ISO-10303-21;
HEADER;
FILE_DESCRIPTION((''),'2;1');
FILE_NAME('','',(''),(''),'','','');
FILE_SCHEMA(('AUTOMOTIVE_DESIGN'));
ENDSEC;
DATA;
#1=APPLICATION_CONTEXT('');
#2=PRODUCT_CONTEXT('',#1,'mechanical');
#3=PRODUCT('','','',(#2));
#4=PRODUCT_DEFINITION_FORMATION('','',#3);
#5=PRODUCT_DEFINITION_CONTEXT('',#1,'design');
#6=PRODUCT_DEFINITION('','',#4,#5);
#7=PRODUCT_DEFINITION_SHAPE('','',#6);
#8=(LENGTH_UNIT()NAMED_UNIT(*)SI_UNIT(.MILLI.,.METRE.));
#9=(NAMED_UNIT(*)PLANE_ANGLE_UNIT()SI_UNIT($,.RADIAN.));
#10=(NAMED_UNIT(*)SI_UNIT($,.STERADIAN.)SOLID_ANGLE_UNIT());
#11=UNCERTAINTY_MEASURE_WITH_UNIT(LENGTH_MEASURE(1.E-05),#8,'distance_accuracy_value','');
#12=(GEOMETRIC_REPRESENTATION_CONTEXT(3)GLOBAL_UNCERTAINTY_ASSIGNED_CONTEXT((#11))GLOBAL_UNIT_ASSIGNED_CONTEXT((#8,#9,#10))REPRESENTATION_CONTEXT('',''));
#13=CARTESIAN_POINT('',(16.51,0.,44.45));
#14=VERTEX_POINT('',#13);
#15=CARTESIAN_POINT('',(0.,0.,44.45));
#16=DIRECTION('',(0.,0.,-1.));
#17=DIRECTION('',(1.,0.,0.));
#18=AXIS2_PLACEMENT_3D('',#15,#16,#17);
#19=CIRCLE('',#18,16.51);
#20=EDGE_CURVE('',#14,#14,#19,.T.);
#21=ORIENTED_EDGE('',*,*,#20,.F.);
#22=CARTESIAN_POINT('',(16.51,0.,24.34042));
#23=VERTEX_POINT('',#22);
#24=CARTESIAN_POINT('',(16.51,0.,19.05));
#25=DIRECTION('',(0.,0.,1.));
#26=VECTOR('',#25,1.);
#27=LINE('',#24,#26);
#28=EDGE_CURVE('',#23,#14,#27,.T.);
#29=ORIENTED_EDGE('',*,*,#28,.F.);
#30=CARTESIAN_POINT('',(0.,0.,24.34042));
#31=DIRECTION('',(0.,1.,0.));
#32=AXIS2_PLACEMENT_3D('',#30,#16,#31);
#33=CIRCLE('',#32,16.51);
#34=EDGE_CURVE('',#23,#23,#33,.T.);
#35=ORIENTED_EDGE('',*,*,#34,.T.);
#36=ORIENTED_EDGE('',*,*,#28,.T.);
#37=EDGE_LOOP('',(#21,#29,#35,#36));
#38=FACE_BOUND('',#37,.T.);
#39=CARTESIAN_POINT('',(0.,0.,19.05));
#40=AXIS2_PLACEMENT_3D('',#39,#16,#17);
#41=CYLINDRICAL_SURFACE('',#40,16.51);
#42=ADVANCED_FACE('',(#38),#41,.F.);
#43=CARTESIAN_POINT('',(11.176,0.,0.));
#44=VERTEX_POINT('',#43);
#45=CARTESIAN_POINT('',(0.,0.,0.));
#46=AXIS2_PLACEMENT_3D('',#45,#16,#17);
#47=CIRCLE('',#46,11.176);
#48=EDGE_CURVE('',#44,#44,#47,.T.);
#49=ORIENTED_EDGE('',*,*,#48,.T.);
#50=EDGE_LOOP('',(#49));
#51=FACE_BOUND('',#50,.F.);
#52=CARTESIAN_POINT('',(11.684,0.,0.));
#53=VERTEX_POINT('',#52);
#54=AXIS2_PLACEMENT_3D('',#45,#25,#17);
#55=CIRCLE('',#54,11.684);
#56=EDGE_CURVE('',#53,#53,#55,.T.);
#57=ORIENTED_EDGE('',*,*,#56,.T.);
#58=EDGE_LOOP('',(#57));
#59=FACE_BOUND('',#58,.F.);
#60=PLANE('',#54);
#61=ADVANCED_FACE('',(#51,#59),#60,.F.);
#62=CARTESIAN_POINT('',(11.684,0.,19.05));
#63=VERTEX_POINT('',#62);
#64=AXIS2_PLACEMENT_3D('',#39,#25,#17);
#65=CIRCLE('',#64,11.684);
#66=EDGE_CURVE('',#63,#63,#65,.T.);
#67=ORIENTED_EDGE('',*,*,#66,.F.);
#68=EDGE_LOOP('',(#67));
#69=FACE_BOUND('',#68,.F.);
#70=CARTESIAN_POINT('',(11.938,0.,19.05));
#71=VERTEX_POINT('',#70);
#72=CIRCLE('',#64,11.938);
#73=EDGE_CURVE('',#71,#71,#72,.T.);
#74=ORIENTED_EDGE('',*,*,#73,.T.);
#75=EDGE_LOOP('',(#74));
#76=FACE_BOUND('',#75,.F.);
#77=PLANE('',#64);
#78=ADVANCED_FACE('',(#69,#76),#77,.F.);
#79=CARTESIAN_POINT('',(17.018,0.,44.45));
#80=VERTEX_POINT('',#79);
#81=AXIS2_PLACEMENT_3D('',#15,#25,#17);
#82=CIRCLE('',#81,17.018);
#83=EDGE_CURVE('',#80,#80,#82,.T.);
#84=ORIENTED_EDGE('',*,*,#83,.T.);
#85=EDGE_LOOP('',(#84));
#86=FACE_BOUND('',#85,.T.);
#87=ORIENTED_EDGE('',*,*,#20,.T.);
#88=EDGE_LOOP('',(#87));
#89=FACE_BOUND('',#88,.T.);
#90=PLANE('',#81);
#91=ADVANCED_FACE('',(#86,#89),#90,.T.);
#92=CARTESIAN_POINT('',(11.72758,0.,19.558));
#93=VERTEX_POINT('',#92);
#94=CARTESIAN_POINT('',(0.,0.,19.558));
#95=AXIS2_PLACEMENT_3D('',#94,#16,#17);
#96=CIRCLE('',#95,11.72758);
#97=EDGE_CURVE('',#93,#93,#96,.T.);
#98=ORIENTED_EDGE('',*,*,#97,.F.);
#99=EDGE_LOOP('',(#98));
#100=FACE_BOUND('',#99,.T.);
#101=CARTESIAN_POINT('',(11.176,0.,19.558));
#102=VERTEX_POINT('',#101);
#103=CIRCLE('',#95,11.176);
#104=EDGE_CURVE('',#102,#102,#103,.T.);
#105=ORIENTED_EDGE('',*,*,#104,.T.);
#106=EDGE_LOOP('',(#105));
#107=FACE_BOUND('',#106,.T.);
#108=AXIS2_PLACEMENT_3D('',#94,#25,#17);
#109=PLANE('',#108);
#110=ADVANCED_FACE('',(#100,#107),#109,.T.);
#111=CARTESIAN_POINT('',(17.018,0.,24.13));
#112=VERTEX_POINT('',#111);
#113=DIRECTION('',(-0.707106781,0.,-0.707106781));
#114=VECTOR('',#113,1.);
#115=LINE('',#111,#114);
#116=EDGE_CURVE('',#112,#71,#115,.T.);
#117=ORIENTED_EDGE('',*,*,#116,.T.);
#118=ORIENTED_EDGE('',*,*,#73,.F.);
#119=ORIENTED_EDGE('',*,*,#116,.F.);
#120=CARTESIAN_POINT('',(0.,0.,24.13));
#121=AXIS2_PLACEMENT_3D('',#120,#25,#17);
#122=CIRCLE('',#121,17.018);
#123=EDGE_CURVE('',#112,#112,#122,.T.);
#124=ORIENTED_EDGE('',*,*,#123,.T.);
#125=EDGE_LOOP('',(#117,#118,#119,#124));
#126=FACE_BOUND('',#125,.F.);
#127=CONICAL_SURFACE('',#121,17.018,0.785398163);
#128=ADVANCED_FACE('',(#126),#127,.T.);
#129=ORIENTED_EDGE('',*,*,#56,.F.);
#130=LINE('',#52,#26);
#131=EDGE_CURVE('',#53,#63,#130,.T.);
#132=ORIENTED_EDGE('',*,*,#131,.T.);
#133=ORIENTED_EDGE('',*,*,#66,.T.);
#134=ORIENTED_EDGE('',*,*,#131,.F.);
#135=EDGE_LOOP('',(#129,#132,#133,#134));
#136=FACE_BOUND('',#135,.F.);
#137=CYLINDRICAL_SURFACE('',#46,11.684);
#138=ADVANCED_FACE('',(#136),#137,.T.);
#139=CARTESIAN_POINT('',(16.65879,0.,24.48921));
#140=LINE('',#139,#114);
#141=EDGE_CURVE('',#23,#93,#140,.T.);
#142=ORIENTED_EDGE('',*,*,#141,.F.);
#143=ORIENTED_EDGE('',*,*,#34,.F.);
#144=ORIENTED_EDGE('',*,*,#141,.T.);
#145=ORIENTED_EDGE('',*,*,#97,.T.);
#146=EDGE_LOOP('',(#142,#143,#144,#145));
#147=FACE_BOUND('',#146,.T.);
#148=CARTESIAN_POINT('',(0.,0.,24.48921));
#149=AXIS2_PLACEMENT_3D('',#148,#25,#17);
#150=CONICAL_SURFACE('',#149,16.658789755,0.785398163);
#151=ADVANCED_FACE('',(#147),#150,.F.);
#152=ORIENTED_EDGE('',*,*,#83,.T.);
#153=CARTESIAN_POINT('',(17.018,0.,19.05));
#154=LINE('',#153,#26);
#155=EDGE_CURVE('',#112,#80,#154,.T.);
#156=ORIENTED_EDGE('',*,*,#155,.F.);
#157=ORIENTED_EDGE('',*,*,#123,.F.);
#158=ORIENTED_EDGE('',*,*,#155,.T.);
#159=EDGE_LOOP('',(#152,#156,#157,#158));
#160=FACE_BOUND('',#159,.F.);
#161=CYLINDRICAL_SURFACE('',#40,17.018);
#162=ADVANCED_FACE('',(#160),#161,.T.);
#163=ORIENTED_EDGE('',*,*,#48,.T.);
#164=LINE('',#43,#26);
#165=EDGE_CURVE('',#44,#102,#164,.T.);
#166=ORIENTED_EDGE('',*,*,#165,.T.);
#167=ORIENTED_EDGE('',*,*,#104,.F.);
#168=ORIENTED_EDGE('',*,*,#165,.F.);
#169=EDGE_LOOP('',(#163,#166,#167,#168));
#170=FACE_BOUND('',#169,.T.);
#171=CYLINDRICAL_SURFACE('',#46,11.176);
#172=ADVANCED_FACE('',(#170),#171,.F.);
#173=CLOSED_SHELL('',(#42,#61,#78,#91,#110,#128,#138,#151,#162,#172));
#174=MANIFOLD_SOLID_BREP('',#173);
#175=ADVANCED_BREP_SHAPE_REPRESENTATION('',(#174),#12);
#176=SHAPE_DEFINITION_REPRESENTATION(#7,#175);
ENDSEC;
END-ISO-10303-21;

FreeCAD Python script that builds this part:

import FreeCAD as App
import Part
import Sketcher
Q = App.Units.Quantity


def edges_at(feature, points):
    """Names of the edges that pass closest to the given points."""
    edges = feature.Shape.Edges
    near = lambda p: min(range(len(edges)), key=lambda i: edges[i].distToShape(Part.Vertex(*p))[0])
    return sorted({f"Edge{near(p) + 1}" for p in points})


def faces_at(feature, points):
    """Names of the faces that lie closest to the given points."""
    faces = feature.Shape.Faces
    near = lambda p: min(range(len(faces)), key=lambda i: faces[i].distToShape(Part.Vertex(*p))[0])
    return sorted({f"Face{near(p) + 1}" for p in points})

doc = App.newDocument("Part")
body = doc.addObject("PartDesign::Body", "Body")

# Sketch on XY plane
sketch1 = body.newObject("Sketcher::SketchObject", "Sketch")
sketch1.AttachmentSupport = (doc.getObject("XY_Plane"), [""])
sketch1.MapMode = "FlatFace"
sketch1.addGeometry(Part.Circle(App.Vector(0, 0, 0), App.Vector(0, 0, 1), 11.684), False)
sketch1.addConstraint(Sketcher.Constraint("Coincident", 0, 3, -1, 1))
sketch1.addConstraint(Sketcher.Constraint("Diameter", 0, Q("0.92 in")))
pad1 = body.newObject("PartDesign::Pad", "Pad")
pad1.Profile = sketch1
pad1.Length = Q("0.75 in")

# Sketch on XY plane
sketch2 = body.newObject("Sketcher::SketchObject", "Sketch001")
sketch2.AttachmentSupport = (doc.getObject("XY_Plane"), [""])
sketch2.MapMode = "FlatFace"
sketch2.AttachmentOffset = App.Placement(App.Vector(0, 0, 0.75 * 25.4), App.Rotation())
sketch2.addGeometry(Part.Circle(App.Vector(0, 0, 0), App.Vector(0, 0, 1), 17.018), False)
sketch2.addConstraint(Sketcher.Constraint("Coincident", 0, 3, -1, 1))
sketch2.addConstraint(Sketcher.Constraint("Diameter", 0, Q("1.34 in")))
pad2 = body.newObject("PartDesign::Pad", "Pad001")
pad2.Profile = sketch2
pad2.Length = Q("1 in")
doc.recompute()

chamfer = body.newObject("PartDesign::Chamfer", "Chamfer")
chamfer.Base = (pad2, edges_at(pad2, [(-17.018, 0, 19.05)]))
chamfer.ChamferType = "Two distances"
chamfer.Size = Q("0.2 in")
chamfer.Size2 = Q("0.2 in")
doc.recompute()

thickness = body.newObject("PartDesign::Thickness", "Thickness")
thickness.Base = (chamfer, faces_at(chamfer, [(0, 0, 44.45), (0, 0, 0)]))
thickness.Value = Q("0.02 in")
thickness.Reversed = True
thickness.Join = "Intersection"

doc.recompute()
